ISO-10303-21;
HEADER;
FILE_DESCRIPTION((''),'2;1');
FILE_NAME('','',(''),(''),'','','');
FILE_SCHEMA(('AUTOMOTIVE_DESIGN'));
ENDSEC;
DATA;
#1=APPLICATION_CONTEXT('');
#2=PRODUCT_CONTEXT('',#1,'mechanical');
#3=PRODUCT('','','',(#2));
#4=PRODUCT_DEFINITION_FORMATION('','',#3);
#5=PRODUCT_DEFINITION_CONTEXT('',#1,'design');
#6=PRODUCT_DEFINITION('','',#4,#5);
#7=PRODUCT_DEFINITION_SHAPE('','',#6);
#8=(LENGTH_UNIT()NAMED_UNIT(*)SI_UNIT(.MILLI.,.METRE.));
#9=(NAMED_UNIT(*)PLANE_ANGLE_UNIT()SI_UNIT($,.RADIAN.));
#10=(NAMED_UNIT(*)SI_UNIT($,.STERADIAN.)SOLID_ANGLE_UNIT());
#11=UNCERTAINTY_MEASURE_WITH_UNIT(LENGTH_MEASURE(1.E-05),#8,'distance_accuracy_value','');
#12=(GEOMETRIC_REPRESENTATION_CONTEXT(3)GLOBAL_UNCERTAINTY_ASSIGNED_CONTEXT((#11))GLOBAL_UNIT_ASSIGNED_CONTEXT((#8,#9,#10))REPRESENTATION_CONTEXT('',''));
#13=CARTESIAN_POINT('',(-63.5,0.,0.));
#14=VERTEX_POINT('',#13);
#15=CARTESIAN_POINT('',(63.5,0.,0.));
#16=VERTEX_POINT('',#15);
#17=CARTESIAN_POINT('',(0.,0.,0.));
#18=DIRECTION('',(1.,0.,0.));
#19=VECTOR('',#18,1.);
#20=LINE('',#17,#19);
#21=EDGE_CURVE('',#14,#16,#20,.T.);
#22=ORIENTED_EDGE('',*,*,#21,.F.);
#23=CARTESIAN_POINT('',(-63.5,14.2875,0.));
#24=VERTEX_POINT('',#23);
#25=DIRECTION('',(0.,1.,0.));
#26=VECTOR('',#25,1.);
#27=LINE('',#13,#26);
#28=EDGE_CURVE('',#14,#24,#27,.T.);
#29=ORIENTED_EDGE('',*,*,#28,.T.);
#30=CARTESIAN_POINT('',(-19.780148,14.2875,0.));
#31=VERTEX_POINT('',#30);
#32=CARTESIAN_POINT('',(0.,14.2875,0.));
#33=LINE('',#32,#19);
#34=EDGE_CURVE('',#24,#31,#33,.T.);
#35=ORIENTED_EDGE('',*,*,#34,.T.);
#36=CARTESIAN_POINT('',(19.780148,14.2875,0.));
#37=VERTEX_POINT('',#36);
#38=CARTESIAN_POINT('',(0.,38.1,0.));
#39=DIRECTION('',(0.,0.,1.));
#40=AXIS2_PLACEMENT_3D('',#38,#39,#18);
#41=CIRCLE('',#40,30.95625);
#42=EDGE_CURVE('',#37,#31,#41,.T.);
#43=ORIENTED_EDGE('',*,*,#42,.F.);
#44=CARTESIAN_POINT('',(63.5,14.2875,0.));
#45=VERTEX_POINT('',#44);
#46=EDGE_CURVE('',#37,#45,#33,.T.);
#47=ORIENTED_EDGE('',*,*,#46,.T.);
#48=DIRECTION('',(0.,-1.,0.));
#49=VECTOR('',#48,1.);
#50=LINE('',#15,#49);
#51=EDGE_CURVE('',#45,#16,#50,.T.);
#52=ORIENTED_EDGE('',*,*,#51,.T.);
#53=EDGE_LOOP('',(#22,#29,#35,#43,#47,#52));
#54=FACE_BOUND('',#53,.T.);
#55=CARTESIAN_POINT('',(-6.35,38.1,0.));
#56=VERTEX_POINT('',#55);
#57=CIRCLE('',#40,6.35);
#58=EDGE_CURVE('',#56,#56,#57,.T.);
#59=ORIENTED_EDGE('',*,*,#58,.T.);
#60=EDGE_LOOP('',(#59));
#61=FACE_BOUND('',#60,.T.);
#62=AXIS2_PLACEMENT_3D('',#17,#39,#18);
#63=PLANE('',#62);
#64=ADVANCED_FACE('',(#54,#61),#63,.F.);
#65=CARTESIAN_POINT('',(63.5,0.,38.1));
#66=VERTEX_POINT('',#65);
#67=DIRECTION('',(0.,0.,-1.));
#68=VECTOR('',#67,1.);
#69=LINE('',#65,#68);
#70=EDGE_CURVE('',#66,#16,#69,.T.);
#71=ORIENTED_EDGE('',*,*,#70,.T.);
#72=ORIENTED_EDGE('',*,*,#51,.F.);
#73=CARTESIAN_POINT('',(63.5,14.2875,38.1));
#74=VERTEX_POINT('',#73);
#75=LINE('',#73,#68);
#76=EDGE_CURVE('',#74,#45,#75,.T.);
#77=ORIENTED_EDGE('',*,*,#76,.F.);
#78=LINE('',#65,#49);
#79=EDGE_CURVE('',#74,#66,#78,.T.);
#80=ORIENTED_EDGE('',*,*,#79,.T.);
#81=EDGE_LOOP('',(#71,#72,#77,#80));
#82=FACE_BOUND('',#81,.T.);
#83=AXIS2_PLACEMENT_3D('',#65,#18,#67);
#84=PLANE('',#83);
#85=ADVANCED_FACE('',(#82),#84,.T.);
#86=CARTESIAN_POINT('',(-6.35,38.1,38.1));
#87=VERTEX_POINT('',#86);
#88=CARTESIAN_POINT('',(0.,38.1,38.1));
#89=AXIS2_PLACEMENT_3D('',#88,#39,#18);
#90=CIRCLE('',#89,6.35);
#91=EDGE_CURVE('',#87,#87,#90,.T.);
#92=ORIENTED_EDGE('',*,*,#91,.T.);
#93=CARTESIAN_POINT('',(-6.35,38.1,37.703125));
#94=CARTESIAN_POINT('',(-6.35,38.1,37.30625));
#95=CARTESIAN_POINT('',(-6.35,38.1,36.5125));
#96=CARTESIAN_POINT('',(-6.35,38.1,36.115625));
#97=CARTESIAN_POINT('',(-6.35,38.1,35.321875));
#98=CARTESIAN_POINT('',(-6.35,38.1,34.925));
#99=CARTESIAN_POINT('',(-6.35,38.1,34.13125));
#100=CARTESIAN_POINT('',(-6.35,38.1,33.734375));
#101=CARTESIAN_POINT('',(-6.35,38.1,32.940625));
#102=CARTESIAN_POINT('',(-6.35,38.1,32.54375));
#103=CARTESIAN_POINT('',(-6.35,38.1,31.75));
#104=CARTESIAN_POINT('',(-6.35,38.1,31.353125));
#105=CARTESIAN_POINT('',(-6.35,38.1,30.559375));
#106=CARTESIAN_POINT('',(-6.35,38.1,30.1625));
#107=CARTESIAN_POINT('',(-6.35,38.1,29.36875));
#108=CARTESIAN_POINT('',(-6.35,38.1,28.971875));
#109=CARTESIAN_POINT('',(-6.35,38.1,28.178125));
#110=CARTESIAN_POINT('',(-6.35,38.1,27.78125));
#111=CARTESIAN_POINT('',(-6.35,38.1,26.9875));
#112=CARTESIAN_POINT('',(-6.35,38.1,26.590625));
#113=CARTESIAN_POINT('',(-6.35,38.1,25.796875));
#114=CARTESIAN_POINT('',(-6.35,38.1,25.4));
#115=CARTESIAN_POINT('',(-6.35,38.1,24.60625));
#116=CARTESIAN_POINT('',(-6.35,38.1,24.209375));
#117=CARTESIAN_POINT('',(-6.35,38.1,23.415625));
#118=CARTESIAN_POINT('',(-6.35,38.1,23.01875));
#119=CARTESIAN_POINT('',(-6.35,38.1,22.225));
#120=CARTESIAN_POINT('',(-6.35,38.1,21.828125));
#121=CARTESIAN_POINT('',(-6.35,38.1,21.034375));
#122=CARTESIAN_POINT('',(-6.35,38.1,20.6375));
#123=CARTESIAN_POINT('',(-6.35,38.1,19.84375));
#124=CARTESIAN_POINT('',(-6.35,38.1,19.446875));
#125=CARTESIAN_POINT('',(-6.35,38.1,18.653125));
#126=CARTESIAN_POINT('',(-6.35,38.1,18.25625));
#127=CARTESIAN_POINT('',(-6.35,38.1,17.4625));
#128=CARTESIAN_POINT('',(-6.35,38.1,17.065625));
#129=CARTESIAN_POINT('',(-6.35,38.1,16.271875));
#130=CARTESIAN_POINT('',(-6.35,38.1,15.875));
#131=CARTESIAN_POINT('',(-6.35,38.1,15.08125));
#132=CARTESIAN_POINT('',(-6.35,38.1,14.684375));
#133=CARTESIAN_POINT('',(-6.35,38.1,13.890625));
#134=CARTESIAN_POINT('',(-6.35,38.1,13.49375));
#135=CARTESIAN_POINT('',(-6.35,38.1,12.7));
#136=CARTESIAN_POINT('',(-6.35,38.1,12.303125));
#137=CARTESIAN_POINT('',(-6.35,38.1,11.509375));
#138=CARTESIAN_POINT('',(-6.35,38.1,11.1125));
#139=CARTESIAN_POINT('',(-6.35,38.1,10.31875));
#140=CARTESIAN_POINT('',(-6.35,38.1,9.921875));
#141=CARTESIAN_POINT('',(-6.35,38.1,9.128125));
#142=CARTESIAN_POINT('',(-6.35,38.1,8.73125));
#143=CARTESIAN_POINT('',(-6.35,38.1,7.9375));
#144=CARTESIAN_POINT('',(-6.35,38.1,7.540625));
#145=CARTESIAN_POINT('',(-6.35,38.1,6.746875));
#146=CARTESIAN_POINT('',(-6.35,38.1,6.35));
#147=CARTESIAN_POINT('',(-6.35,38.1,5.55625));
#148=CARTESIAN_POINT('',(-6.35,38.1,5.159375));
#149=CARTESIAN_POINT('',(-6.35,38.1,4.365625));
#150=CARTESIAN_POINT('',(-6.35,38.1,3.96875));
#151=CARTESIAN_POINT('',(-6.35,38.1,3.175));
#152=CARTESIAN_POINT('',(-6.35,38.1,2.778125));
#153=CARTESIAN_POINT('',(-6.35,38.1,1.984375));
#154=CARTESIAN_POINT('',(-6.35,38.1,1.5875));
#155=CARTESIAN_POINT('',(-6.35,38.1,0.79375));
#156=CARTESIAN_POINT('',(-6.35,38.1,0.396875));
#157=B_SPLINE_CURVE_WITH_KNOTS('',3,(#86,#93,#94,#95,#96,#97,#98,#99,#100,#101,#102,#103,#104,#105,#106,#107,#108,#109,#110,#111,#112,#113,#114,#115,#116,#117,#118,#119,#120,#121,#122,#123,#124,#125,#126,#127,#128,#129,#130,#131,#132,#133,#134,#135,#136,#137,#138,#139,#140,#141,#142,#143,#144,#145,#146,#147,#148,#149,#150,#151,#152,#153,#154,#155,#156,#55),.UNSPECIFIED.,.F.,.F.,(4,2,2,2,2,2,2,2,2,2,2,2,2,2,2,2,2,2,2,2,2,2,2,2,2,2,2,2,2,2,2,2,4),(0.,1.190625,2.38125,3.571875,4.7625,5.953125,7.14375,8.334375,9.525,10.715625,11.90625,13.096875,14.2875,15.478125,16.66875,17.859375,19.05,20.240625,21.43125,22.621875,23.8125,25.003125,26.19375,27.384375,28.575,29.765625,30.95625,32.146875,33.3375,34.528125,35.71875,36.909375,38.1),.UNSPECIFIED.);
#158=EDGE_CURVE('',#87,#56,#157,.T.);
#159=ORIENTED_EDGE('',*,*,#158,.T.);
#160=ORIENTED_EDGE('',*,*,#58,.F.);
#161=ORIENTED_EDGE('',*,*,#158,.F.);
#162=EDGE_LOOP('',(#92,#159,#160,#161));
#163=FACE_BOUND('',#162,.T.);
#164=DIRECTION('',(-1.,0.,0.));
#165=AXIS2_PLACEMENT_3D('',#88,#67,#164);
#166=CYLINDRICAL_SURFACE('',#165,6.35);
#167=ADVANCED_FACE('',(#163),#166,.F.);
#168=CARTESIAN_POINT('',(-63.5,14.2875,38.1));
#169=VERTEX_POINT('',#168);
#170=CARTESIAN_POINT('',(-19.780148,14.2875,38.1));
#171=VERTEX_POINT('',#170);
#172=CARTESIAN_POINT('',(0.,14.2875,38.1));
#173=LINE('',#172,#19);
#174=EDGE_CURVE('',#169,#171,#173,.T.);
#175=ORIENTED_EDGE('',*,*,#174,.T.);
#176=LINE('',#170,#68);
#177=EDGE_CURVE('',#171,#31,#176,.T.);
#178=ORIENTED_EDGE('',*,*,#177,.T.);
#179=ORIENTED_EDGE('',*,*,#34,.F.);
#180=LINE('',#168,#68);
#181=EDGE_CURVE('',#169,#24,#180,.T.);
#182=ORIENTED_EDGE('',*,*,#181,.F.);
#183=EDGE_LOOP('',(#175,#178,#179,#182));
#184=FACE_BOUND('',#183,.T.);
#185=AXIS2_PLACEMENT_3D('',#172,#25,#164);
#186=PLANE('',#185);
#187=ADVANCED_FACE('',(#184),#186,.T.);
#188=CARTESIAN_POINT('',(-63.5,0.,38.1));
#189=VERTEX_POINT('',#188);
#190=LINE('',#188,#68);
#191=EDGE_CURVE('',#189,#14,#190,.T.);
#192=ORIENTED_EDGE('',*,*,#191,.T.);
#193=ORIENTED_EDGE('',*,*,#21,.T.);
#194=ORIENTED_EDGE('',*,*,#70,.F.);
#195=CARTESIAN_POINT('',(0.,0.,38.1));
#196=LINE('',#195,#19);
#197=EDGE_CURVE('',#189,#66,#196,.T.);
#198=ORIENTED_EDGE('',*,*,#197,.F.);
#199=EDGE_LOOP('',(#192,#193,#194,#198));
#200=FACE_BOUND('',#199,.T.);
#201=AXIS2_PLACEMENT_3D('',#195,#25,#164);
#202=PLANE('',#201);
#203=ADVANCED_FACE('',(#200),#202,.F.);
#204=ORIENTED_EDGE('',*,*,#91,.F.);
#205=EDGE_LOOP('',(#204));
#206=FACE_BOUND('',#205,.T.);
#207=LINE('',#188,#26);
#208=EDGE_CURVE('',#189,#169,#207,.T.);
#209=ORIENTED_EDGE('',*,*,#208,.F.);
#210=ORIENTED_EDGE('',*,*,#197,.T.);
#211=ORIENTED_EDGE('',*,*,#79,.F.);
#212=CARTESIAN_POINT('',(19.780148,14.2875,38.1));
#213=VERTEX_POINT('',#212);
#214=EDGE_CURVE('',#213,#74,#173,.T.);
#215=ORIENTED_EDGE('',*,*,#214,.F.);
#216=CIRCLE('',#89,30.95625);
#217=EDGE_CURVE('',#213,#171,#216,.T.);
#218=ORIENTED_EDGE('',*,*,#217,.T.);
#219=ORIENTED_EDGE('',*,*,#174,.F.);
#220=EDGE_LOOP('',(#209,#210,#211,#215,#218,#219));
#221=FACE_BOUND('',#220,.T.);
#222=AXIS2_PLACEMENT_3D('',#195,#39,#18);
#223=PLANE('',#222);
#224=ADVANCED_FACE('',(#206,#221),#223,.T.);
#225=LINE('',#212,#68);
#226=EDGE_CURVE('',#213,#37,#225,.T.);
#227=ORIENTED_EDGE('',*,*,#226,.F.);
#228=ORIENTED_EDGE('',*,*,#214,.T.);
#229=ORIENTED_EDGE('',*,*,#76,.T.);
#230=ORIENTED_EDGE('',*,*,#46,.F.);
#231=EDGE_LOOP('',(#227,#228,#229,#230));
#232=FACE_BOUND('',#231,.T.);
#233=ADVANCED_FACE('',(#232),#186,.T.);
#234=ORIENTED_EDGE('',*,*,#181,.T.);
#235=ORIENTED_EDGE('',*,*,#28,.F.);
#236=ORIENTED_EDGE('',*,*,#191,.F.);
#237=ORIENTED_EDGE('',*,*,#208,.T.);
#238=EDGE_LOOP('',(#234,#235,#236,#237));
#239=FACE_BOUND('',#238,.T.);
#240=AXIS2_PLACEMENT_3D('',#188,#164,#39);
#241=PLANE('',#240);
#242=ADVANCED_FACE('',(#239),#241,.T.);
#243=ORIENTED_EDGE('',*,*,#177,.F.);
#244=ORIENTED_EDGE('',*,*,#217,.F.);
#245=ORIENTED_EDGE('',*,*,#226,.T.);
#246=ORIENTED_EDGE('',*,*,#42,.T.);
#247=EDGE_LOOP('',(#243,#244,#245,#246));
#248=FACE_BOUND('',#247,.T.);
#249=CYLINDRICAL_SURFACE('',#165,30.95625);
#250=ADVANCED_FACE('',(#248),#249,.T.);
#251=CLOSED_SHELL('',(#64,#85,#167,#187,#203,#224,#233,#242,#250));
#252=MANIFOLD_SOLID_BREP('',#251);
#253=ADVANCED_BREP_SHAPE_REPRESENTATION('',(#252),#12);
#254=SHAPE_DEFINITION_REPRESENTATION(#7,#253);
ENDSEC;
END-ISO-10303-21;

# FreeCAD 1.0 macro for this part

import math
import FreeCAD as App
import Part
import Sketcher

V = App.Vector
Q = App.Units.Quantity

doc = App.newDocument("Part")
params = doc.addObject("Spreadsheet::Sheet", "Params")
for row, (alias, value) in enumerate([
    ("sketch1_diameter", "0.5 in"),
    ("sketch1_width", "5 in"),
    ("sketch1_radius", "1.21875 in"),
    ("sketch1_height", "0.5625 in"),
    ("pad1_length", "1.5 in"),
], start=1):
    params.set(f"A{row}", alias)
    params.set(f"B{row}", "=" + value)
    params.setAlias(f"B{row}", alias)

body = doc.addObject("PartDesign::Body", "Body")

sketch1 = body.newObject("Sketcher::SketchObject", "Sketch")
sketch1.AttachmentSupport = (doc.getObject("XY_Plane"), [""])
sketch1.MapMode = "FlatFace"
sketch1.addGeometry(Part.LineSegment(V(-20, 14, 0), V(-64, 14, 0)), False)
sketch1.addGeometry(Part.LineSegment(V(-64, 14, 0), V(-64, 0, 0)), False)
sketch1.addGeometry(Part.LineSegment(V(-64, 0, 0), V(64, 0, 0)), False)
sketch1.addGeometry(Part.LineSegment(V(64, 0, 0), V(64, 14, 0)), False)
sketch1.addGeometry(Part.LineSegment(V(64, 14, 0), V(20, 14, 0)), False)
sketch1.addGeometry(Part.ArcOfCircle(Part.Circle(V(0, 38, 0), V(0, 0, 1), 31), math.radians(-50), math.radians(230)), False)
sketch1.addGeometry(Part.Circle(V(0, 38, 0), V(0, 0, 1), 6), False)
sketch1.addConstraint(Sketcher.Constraint("Coincident", 0, 2, 1, 1))
sketch1.addConstraint(Sketcher.Constraint("Coincident", 1, 2, 2, 1))
sketch1.addConstraint(Sketcher.Constraint("Coincident", 2, 2, 3, 1))
sketch1.addConstraint(Sketcher.Constraint("Coincident", 3, 2, 4, 1))
sketch1.addConstraint(Sketcher.Constraint("Coincident", 4, 2, 5, 1))
sketch1.addConstraint(Sketcher.Constraint("Coincident", 5, 2, 0, 1))
sketch1.addConstraint(Sketcher.Constraint("Horizontal", 0))
sketch1.addConstraint(Sketcher.Constraint("Vertical", 1))
sketch1.addConstraint(Sketcher.Constraint("Horizontal", 2))
sketch1.addConstraint(Sketcher.Constraint("Vertical", 3))
sketch1.addConstraint(Sketcher.Constraint("Horizontal", 4))
sketch1.addConstraint(Sketcher.Constraint("Coincident", 6, 3, 5, 3))
sketch1.addConstraint(Sketcher.Constraint("Symmetric", 1, 2, 2, 2, -1, 1))
sketch1.addConstraint(Sketcher.Constraint("Symmetric", 4, 2, 5, 2, -2))
sketch1.addConstraint(Sketcher.Constraint("Diameter", 6, Q("0.5 in")))
sketch1.addConstraint(Sketcher.Constraint("DistanceX", 2, 1, 2, 2, Q("5 in")))
sketch1.addConstraint(Sketcher.Constraint("Radius", 5, Q("1.21875 in")))
sketch1.addConstraint(Sketcher.Constraint("DistanceY", -1, 1, 5, 3, Q("1.5 in")))
sketch1.addConstraint(Sketcher.Constraint("DistanceY", 1, 2, 1, 1, Q("0.5625 in")))
sketch1.setExpression("Constraints[14]", "Params.sketch1_diameter")
sketch1.setExpression("Constraints[15]", "Params.sketch1_width")
sketch1.setExpression("Constraints[16]", "Params.sketch1_radius")
sketch1.setExpression("Constraints[18]", "Params.sketch1_height")
pad1 = body.newObject("PartDesign::Pad", "Pad")
pad1.Profile = sketch1
pad1.setExpression("Length", "Params.pad1_length")

doc.recompute()
